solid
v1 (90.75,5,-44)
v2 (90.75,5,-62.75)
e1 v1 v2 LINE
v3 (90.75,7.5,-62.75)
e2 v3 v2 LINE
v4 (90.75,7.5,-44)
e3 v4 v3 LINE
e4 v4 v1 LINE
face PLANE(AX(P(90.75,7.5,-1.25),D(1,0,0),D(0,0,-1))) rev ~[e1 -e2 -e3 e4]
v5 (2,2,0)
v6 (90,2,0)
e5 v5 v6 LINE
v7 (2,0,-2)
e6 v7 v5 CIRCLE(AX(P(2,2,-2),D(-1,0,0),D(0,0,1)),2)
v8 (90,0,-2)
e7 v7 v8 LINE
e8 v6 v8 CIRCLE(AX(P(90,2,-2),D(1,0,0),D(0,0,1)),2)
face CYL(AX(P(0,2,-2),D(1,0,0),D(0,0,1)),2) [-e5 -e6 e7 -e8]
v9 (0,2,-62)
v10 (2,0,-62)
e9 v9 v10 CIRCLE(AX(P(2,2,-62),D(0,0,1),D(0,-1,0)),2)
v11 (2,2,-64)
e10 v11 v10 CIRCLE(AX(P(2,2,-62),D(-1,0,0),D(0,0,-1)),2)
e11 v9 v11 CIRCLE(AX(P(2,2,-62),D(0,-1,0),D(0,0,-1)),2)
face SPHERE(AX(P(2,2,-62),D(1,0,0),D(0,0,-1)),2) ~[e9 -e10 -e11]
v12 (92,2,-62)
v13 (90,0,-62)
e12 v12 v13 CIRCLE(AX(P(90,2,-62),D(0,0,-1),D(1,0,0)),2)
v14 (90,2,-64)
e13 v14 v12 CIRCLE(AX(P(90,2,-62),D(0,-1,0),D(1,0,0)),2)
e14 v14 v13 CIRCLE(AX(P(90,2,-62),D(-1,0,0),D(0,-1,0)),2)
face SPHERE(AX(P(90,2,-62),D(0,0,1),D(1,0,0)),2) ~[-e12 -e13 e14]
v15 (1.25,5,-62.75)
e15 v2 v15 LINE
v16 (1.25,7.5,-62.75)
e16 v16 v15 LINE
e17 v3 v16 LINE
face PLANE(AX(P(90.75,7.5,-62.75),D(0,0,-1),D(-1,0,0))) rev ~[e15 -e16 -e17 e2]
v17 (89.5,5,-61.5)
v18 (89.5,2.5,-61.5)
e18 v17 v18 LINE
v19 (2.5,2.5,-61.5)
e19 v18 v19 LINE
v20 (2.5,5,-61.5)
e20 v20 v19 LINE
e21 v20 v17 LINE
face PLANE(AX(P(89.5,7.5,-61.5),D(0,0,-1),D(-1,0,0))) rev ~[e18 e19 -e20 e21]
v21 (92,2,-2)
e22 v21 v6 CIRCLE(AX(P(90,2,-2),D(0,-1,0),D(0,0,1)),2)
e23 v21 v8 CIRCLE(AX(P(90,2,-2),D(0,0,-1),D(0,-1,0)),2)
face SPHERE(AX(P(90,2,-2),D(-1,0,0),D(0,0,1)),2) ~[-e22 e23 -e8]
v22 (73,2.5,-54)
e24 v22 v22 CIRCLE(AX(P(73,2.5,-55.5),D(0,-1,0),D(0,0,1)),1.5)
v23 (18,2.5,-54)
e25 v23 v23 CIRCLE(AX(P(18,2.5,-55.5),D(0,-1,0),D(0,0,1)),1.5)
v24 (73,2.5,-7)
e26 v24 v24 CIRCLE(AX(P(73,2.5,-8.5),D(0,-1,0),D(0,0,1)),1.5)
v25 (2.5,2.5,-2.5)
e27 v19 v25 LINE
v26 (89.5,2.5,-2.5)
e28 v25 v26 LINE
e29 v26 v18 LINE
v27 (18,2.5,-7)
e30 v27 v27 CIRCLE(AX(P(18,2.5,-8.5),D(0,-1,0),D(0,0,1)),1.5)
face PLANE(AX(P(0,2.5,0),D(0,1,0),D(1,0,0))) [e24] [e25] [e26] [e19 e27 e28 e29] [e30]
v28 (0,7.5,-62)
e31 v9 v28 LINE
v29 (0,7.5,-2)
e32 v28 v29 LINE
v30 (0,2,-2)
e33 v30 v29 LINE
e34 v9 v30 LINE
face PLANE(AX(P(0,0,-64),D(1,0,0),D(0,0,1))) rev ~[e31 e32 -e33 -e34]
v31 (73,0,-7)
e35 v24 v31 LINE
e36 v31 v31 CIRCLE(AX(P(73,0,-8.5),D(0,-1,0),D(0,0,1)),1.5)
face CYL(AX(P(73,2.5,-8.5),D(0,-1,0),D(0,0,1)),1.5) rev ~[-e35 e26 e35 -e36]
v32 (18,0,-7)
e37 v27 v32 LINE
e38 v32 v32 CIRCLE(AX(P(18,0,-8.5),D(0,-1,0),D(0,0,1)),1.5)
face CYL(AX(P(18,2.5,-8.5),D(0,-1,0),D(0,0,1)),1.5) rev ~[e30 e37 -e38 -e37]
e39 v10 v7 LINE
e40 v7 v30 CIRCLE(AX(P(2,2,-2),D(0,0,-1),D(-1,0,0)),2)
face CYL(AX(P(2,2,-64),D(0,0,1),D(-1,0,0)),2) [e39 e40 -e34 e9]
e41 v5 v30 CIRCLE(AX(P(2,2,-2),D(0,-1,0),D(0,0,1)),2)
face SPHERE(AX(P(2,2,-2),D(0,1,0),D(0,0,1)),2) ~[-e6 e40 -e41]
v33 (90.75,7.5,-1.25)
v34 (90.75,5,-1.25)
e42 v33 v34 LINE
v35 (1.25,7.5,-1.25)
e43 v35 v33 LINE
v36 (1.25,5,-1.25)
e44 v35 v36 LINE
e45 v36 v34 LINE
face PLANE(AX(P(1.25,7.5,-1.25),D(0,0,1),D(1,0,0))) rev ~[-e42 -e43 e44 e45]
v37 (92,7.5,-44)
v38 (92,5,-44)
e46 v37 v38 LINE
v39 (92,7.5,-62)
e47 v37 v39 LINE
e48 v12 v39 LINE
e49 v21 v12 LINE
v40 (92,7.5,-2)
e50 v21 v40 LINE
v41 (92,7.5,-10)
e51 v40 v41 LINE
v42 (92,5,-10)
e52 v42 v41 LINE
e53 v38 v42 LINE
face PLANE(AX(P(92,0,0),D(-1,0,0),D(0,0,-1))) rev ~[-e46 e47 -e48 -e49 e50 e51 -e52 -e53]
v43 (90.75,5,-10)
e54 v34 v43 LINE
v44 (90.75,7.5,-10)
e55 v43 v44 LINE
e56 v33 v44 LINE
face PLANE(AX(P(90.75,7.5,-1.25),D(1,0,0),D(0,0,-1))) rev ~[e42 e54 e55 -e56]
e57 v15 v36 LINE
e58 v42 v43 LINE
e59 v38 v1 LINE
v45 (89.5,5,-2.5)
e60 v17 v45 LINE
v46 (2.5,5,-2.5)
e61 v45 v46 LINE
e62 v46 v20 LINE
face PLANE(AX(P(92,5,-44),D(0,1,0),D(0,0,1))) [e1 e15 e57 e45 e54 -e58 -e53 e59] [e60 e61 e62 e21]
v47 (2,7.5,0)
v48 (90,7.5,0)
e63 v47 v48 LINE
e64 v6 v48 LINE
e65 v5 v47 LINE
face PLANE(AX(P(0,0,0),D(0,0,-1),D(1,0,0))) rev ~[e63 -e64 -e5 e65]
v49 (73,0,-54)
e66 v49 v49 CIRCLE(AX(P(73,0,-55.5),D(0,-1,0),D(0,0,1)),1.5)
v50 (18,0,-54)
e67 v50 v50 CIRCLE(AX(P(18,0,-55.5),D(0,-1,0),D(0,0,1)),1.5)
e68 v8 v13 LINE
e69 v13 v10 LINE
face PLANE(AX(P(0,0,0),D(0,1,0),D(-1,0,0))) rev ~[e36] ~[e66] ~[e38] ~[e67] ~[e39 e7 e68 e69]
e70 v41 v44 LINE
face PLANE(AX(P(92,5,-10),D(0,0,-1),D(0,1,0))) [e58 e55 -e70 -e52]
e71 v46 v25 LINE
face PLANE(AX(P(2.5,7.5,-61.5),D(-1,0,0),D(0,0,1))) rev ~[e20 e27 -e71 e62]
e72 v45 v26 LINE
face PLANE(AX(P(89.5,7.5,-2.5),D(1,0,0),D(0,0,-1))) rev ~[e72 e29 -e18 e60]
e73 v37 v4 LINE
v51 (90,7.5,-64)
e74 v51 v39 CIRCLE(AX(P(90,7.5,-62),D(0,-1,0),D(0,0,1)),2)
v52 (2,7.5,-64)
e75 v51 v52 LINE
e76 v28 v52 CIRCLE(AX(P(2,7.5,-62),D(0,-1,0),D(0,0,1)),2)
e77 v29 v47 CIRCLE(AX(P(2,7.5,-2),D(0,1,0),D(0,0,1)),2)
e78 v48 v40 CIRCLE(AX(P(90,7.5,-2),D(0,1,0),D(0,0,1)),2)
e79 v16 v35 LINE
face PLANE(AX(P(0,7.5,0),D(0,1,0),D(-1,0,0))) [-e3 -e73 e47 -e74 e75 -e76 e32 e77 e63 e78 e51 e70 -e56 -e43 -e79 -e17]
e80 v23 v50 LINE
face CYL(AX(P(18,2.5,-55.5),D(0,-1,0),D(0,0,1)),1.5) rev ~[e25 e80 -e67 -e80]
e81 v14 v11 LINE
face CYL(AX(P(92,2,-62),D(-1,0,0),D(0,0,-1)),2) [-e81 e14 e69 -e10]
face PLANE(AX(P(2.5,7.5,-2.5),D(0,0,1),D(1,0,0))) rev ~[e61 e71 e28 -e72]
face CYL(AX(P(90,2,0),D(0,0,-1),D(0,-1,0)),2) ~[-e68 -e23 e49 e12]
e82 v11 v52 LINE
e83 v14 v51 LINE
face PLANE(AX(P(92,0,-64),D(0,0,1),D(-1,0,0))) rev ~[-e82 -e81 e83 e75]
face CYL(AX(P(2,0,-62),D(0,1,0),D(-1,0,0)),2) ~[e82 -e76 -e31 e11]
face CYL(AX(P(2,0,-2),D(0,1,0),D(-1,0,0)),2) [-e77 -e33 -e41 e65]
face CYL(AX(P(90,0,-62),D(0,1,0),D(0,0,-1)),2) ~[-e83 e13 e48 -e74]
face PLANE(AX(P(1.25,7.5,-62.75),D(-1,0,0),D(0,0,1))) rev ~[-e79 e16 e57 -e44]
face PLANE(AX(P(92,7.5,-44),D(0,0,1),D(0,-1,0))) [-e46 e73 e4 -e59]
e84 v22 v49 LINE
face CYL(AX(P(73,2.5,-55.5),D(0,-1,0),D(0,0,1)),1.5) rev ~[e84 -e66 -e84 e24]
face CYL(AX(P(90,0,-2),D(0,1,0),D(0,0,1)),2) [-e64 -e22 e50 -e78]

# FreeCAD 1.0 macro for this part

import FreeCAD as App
import Part
import Sketcher
Q = App.Units.Quantity


def edges_at(feature, points):
    """Names of the edges that pass closest to the given points."""
    edges = feature.Shape.Edges
    near = lambda p: min(range(len(edges)), key=lambda i: edges[i].distToShape(Part.Vertex(*p))[0])
    return sorted({f"Edge{near(p) + 1}" for p in points})

doc = App.newDocument("Part")
body = doc.addObject("PartDesign::Body", "Body")

sketch1 = body.newObject("Sketcher::SketchObject", "Sketch")
sketch1.AttachmentSupport = (doc.getObject("XZ_Plane"), [""])
sketch1.MapMode = "FlatFace"
sketch1.addGeometry([
    Part.LineSegment(App.Vector(0, -64, 0), App.Vector(0, 0, 0)),
    Part.LineSegment(App.Vector(0, 0, 0), App.Vector(92, 0, 0)),
    Part.LineSegment(App.Vector(92, 0, 0), App.Vector(92, -64, 0)),
    Part.LineSegment(App.Vector(92, -64, 0), App.Vector(0, -64, 0)),
], False)
sketch1.addConstraint([
    Sketcher.Constraint("Coincident", 0, 2, 1, 1),
    Sketcher.Constraint("Coincident", 1, 2, 2, 1),
    Sketcher.Constraint("Coincident", 2, 2, 3, 1),
    Sketcher.Constraint("Coincident", 3, 2, 0, 1),
    Sketcher.Constraint("Vertical", 0),
    Sketcher.Constraint("Horizontal", 1),
    Sketcher.Constraint("Vertical", 2),
    Sketcher.Constraint("Horizontal", 3),
    Sketcher.Constraint("Coincident", 0, 2, -1, 1),
    Sketcher.Constraint("DistanceX", 1, 1, 1, 2, Q("92 mm")),
    Sketcher.Constraint("DistanceY", 0, 1, 0, 2, Q("64 mm")),
])
pad1 = body.newObject("PartDesign::Pad", "Pad")
pad1.Profile = sketch1
pad1.Length = 7.5
pad1.Reversed = True

sketch2 = body.newObject("Sketcher::SketchObject", "Sketch001")
sketch2.AttachmentSupport = (doc.getObject("XZ_Plane"), [""])
sketch2.MapMode = "FlatFace"
sketch2.AttachmentOffset = App.Placement(App.Vector(0, 0, -7.5), App.Rotation())
sketch2.addGeometry([
    Part.LineSegment(App.Vector(2, -62, 0), App.Vector(2, -2, 0)),
    Part.LineSegment(App.Vector(2, -2, 0), App.Vector(90, -2, 0)),
    Part.LineSegment(App.Vector(90, -2, 0), App.Vector(90, -62, 0)),
    Part.LineSegment(App.Vector(90, -62, 0), App.Vector(2, -62, 0)),
], False)
sketch2.addConstraint([
    Sketcher.Constraint("Coincident", 0, 2, 1, 1),
    Sketcher.Constraint("Coincident", 1, 2, 2, 1),
    Sketcher.Constraint("Coincident", 2, 2, 3, 1),
    Sketcher.Constraint("Coincident", 3, 2, 0, 1),
    Sketcher.Constraint("Vertical", 0),
    Sketcher.Constraint("Horizontal", 1),
    Sketcher.Constraint("Vertical", 2),
    Sketcher.Constraint("Horizontal", 3),
    Sketcher.Constraint("DistanceX", -1, 1, 0, 2, Q("2.5 mm")),
    Sketcher.Constraint("DistanceY", 0, 2, -1, 1, Q("2.5 mm")),
    Sketcher.Constraint("DistanceX", 1, 1, 1, 2, Q("87 mm")),
    Sketcher.Constraint("DistanceY", 0, 1, 0, 2, Q("59 mm")),
])
pocket1 = body.newObject("PartDesign::Pocket", "Pocket")
pocket1.Profile = sketch2
pocket1.Length = 5
pocket1.Reversed = True
doc.recompute()

fillet = body.newObject("PartDesign::Fillet", "Fillet")
fillet.Base = (pocket1, edges_at(pocket1, [
    (0, 3.75, 0),
    (46, 0, 0),
    (92, 3.75, 0),
    (92, 0, -32),
    (92, 3.75, -64),
    (46, 0, -64),
    (0, 3.75, -64),
    (0, 0, -32),
]))
fillet.Radius = 2

sketch3 = body.newObject("Sketcher::SketchObject", "Sketch002")
sketch3.AttachmentSupport = (doc.getObject("XZ_Plane"), [""])
sketch3.MapMode = "FlatFace"
sketch3.AttachmentOffset = App.Placement(App.Vector(0, 0, -7.5), App.Rotation())
sketch3.addGeometry([
    Part.LineSegment(App.Vector(1, -63, 0), App.Vector(1, -1, 0)),
    Part.LineSegment(App.Vector(1, -1, 0), App.Vector(91, -1, 0)),
    Part.LineSegment(App.Vector(91, -1, 0), App.Vector(91, -63, 0)),
    Part.LineSegment(App.Vector(91, -63, 0), App.Vector(1, -63, 0)),
], False)
sketch3.addConstraint([
    Sketcher.Constraint("Coincident", 0, 2, 1, 1),
    Sketcher.Constraint("Coincident", 1, 2, 2, 1),
    Sketcher.Constraint("Coincident", 2, 2, 3, 1),
    Sketcher.Constraint("Coincident", 3, 2, 0, 1),
    Sketcher.Constraint("Vertical", 0),
    Sketcher.Constraint("Horizontal", 1),
    Sketcher.Constraint("Vertical", 2),
    Sketcher.Constraint("Horizontal", 3),
    Sketcher.Constraint("DistanceX", -1, 1, 0, 2, Q("1.25 mm")),
    Sketcher.Constraint("DistanceY", 0, 2, -1, 1, Q("1.25 mm")),
    Sketcher.Constraint("DistanceX", 1, 1, 1, 2, Q("89.5 mm")),
    Sketcher.Constraint("DistanceY", 0, 1, 0, 2, Q("61.5 mm")),
])
pocket2 = body.newObject("PartDesign::Pocket", "Pocket001")
pocket2.Profile = sketch3
pocket2.Length = 2.5
pocket2.Reversed = True

sketch4 = body.newObject("Sketcher::SketchObject", "Sketch003")
sketch4.AttachmentSupport = (doc.getObject("XZ_Plane"), [""])
sketch4.MapMode = "FlatFace"
sketch4.AttachmentOffset = App.Placement(App.Vector(0, 0, -2.5), App.Rotation())
sketch4.addGeometry([
    Part.Circle(App.Vector(18, -8.5, 0), App.Vector(0, 0, 1), 1.5),
    Part.Circle(App.Vector(18, -55.5, 0), App.Vector(0, 0, 1), 1.5),
    Part.Circle(App.Vector(73, -55.5, 0), App.Vector(0, 0, 1), 1.5),
    Part.Circle(App.Vector(73, -8.5, 0), App.Vector(0, 0, 1), 1.5),
], False)
sketch4.addConstraint([
    Sketcher.Constraint("Equal", 0, 1),
    Sketcher.Constraint("Equal", 1, 2),
    Sketcher.Constraint("Equal", 2, 3),
    Sketcher.Constraint("Horizontal", 1, 3, 2, 3),
    Sketcher.Constraint("Horizontal", 0, 3, 3, 3),
    Sketcher.Constraint("Vertical", 0, 3, 1, 3),
    Sketcher.Constraint("Vertical", 2, 3, 3, 3),
    Sketcher.Constraint("Diameter", 0, Q("3 mm")),
    Sketcher.Constraint("DistanceX", -1, 1, 0, 3, Q("18 mm")),
    Sketcher.Constraint("DistanceX", -1, 1, 2, 3, Q("73 mm")),
    Sketcher.Constraint("DistanceY", 1, 3, 0, 3, Q("47 mm")),
    Sketcher.Constraint("DistanceY", 0, 3, -1, 1, Q("8.5 mm")),
])
doc.recompute()
hole = body.newObject("PartDesign::Hole", "Hole")
hole.Profile = sketch4
hole.ThreadType = "None"
hole.Diameter = 3
hole.DepthType = "ThroughAll"
hole.Reversed = True

sketch5 = body.newObject("Sketcher::SketchObject", "Sketch004")
sketch5.AttachmentSupport = (doc.getObject("YZ_Plane"), [""])
sketch5.MapMode = "FlatFace"
sketch5.AttachmentOffset = App.Placement(App.Vector(0, 0, 92), App.Rotation())
sketch5.addGeometry([
    Part.LineSegment(App.Vector(7.5, -44, 0), App.Vector(7.5, -10, 0)),
    Part.LineSegment(App.Vector(7.5, -10, 0), App.Vector(5, -10, 0)),
    Part.LineSegment(App.Vector(5, -10, 0), App.Vector(5, -44, 0)),
    Part.LineSegment(App.Vector(5, -44, 0), App.Vector(7.5, -44, 0)),
], False)
sketch5.addConstraint([
    Sketcher.Constraint("Coincident", 0, 2, 1, 1),
    Sketcher.Constraint("Coincident", 1, 2, 2, 1),
    Sketcher.Constraint("Coincident", 2, 2, 3, 1),
    Sketcher.Constraint("Coincident", 3, 2, 0, 1),
    Sketcher.Constraint("Vertical", 0),
    Sketcher.Constraint("Horizontal", 1),
    Sketcher.Constraint("Vertical", 2),
    Sketcher.Constraint("Horizontal", 3),
    Sketcher.Constraint("DistanceX", 1, 2, 1, 1, Q("2.5 mm")),
    Sketcher.Constraint("DistanceY", 0, 1, 0, 2, Q("34 mm")),
    Sketcher.Constraint("DistanceY", 0, 2, -1, 1, Q("10 mm")),
    Sketcher.Constraint("DistanceX", -1, 1, 1, 2, Q("5 mm")),
])
pocket3 = body.newObject("PartDesign::Pocket", "Pocket002")
pocket3.Profile = sketch5
pocket3.Length = 2.5

doc.recompute()
